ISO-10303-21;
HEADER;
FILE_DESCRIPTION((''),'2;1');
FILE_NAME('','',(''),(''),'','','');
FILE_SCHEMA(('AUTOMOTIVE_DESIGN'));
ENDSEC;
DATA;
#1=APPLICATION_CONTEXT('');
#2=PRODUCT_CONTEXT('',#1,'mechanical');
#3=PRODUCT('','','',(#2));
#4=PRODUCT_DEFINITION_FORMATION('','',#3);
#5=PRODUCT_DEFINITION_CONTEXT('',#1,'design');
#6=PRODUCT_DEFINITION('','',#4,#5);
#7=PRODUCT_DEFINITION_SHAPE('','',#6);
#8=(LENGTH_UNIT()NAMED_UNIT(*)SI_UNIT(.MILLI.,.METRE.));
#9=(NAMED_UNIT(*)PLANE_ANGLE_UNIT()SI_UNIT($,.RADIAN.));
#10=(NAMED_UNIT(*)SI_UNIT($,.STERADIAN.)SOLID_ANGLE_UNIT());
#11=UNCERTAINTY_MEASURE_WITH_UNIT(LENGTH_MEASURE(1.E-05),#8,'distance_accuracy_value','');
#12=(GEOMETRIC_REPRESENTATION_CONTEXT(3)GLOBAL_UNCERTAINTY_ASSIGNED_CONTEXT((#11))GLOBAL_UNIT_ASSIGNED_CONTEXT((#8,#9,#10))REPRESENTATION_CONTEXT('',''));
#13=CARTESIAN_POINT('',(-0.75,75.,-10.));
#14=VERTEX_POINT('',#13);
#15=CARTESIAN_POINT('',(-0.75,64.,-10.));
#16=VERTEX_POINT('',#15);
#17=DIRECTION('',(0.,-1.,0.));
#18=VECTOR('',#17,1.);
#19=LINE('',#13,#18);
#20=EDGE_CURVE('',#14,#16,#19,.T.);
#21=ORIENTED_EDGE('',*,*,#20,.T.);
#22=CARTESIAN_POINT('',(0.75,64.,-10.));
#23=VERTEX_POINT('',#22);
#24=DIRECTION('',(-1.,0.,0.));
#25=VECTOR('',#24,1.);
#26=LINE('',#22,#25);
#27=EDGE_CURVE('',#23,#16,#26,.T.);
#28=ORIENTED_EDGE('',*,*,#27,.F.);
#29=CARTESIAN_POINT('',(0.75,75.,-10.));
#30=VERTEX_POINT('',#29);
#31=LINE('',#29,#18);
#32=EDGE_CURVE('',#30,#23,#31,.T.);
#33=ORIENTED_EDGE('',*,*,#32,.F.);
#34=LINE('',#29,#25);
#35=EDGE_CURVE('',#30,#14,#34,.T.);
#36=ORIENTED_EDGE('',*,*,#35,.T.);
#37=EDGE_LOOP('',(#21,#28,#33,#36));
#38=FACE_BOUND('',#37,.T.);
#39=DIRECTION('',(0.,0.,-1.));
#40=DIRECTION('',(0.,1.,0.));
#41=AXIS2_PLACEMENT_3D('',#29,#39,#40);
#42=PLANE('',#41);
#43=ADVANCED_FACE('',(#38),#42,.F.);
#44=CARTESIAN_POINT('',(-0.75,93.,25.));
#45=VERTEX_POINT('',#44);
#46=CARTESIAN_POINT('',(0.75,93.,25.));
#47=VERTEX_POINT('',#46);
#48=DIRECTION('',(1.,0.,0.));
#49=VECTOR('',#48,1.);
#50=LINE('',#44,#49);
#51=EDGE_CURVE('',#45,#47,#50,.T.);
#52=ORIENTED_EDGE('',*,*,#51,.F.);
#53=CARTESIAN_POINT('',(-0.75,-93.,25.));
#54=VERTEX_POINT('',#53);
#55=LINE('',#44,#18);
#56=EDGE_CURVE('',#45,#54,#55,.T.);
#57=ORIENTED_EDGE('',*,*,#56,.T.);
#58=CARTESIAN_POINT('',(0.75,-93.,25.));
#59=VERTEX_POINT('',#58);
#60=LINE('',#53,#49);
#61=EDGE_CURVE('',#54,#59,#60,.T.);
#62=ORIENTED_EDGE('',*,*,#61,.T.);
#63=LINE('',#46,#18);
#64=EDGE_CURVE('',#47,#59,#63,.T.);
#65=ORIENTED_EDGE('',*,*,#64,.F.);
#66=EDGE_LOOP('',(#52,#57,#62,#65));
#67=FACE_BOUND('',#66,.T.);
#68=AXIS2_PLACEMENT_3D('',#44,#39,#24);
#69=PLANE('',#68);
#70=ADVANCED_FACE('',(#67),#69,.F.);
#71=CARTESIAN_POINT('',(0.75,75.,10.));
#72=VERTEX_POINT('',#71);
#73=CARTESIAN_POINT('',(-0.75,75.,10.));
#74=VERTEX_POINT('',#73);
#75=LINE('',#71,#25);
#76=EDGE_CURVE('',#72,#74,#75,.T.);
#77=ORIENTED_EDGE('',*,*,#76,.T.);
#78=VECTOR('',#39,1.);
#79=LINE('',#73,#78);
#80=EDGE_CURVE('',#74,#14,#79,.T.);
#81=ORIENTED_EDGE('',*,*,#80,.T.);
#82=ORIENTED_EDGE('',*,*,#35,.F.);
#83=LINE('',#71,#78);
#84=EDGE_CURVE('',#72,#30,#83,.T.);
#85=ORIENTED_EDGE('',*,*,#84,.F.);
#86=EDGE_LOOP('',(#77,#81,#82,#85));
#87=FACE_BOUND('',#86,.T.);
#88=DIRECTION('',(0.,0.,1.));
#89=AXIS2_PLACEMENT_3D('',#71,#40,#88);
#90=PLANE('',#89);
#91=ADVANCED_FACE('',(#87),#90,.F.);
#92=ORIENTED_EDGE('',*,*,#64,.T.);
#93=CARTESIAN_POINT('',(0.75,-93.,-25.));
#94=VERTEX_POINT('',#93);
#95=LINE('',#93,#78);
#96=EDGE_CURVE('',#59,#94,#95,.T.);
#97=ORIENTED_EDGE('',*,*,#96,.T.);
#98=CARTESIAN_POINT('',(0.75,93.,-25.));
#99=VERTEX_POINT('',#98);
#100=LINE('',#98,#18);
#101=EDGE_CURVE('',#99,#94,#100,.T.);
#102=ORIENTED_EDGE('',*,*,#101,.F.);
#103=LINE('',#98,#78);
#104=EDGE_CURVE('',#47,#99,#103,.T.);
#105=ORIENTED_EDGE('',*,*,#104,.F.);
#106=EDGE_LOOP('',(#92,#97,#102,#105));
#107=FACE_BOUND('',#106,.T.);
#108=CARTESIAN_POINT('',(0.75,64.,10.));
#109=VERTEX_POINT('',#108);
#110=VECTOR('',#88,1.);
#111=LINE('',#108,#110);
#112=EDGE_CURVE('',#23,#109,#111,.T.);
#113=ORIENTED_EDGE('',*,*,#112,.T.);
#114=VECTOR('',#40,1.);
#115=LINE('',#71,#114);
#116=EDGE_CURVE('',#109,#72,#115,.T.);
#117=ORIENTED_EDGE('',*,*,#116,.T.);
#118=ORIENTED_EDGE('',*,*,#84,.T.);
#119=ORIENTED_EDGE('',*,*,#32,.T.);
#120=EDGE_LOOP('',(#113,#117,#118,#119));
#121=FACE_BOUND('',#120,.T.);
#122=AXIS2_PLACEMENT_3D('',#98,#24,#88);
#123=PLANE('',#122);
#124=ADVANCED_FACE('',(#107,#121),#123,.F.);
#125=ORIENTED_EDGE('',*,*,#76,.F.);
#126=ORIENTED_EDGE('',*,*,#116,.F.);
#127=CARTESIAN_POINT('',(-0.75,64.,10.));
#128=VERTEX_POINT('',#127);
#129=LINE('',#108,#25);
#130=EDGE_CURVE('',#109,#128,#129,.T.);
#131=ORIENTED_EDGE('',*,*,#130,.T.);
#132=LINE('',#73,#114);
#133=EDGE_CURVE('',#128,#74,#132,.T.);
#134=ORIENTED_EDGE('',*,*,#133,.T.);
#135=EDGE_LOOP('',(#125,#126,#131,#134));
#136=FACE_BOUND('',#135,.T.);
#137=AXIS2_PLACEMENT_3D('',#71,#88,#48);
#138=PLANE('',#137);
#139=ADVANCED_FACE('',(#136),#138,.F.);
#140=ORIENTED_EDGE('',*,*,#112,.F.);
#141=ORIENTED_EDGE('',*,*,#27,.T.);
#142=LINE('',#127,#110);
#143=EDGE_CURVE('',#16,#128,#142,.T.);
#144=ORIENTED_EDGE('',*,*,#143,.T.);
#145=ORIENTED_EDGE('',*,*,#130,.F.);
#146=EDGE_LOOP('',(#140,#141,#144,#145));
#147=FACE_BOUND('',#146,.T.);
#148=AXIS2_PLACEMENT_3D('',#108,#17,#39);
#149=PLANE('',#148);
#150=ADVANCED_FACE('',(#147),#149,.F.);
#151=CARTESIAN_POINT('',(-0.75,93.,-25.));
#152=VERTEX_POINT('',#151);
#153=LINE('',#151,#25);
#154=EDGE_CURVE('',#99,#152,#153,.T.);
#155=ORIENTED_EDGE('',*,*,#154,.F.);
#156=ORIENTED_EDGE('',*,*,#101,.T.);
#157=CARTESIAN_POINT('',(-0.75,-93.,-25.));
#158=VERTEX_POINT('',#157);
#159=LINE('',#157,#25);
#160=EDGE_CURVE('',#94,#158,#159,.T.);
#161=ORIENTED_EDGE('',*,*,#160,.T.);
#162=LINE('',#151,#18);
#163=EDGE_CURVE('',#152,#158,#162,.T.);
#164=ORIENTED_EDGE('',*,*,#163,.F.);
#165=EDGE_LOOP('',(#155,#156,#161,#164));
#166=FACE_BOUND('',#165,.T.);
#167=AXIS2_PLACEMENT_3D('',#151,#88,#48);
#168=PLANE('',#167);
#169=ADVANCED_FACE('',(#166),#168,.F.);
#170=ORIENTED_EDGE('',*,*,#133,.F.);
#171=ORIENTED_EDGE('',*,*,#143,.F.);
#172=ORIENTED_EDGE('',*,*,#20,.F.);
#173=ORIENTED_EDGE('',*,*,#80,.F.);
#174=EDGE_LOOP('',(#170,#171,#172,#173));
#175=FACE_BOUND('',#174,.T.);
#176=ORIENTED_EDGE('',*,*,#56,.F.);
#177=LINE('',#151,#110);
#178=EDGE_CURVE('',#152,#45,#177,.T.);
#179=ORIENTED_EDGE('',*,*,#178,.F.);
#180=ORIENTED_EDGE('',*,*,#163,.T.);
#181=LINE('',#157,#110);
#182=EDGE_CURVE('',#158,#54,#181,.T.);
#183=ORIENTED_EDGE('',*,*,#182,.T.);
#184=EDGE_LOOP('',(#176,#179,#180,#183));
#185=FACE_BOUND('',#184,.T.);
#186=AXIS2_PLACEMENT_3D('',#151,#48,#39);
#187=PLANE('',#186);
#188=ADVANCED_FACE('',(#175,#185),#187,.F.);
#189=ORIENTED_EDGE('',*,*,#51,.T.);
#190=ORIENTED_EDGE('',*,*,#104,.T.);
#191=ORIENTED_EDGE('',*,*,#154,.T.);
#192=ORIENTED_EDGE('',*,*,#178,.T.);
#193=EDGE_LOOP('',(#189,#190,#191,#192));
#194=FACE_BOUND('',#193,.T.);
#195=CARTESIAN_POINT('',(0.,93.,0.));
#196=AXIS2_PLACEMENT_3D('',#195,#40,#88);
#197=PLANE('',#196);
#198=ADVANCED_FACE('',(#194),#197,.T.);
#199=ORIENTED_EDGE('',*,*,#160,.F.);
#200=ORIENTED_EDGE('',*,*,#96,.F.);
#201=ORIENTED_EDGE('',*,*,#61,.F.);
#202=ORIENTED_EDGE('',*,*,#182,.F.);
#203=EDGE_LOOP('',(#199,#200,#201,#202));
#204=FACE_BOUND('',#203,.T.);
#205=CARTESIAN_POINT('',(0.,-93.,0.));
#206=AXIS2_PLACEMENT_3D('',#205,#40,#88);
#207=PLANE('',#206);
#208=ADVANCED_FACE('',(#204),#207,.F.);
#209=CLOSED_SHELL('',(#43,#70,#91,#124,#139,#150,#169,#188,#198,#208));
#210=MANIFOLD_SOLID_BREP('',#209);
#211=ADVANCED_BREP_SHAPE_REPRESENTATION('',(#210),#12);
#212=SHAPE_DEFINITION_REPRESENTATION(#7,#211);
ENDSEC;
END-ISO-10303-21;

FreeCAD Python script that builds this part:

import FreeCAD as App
import Part
import Sketcher
from FreeCAD import Vector
Q = App.Units.Quantity


def add_polygon(sketch, points):
    """Adds a closed chain of lines whose ends are joined by coincident constraints."""
    first, n = sketch.GeometryCount, len(points)
    for a, b in zip(points, points[1:] + points[:1]):
        sketch.addGeometry(Part.LineSegment(App.Vector(*a, 0), App.Vector(*b, 0)), False)
    for i in range(n):
        sketch.addConstraint(Sketcher.Constraint("Coincident", first + i, 2, first + (i + 1) % n, 1))

doc = App.newDocument("Part")
body = doc.addObject("PartDesign::Body", "Body")

sketch1 = body.newObject("Sketcher::SketchObject", "Sketch")
sketch1.AttachmentSupport = (doc.getObject("XZ_Plane"), [""])
sketch1.MapMode = "FlatFace"
add_polygon(sketch1, [(-0.8, -25), (-0.8, 25), (0.8, 25), (0.8, -25)])
sketch1.addConstraint([
    Sketcher.Constraint("Vertical", 0),
    Sketcher.Constraint("Horizontal", 1),
    Sketcher.Constraint("Vertical", 2),
    Sketcher.Constraint("Horizontal", 3),
    Sketcher.Constraint("Symmetric", 0, 2, 2, 2, -1, 1),
    Sketcher.Constraint("DistanceY", 0, 1, 0, 2, Q("50 mm")),
    Sketcher.Constraint("DistanceX", 1, 1, 1, 2, Q("1.5 mm")),
])
pad1 = body.newObject("PartDesign::Pad", "Pad")
pad1.Profile = sketch1
pad1.Length = 186
pad1.Midplane = True

sketch2 = body.newObject("Sketcher::SketchObject", "Sketch001")
sketch2.AttachmentSupport = (doc.getObject("YZ_Plane"), [""])
sketch2.MapMode = "FlatFace"
sketch2.AttachmentOffset = App.Placement(Vector(0, 0, -0.75), App.Rotation())
add_polygon(sketch2, [(75, -10), (64, -10), (64, 10), (75, 10)])
sketch2.addConstraint([
    Sketcher.Constraint("Horizontal", 0),
    Sketcher.Constraint("Vertical", 1),
    Sketcher.Constraint("Horizontal", 2),
    Sketcher.Constraint("Vertical", 3),
    Sketcher.Constraint("DistanceX", 0, 2, 0, 1, Q("11 mm")),
    Sketcher.Constraint("DistanceY", 1, 1, 1, 2, Q("20 mm")),
    Sketcher.Constraint("DistanceX", -1, 1, 0, 2, Q("64 mm")),
    Sketcher.Constraint("DistanceY", 0, 2, -1, 1, Q("10 mm")),
])
pocket1 = body.newObject("PartDesign::Pocket", "Pocket")
pocket1.Profile = sketch2
pocket1.Type = "ThroughAll"
pocket1.Reversed = True

doc.recompute()
